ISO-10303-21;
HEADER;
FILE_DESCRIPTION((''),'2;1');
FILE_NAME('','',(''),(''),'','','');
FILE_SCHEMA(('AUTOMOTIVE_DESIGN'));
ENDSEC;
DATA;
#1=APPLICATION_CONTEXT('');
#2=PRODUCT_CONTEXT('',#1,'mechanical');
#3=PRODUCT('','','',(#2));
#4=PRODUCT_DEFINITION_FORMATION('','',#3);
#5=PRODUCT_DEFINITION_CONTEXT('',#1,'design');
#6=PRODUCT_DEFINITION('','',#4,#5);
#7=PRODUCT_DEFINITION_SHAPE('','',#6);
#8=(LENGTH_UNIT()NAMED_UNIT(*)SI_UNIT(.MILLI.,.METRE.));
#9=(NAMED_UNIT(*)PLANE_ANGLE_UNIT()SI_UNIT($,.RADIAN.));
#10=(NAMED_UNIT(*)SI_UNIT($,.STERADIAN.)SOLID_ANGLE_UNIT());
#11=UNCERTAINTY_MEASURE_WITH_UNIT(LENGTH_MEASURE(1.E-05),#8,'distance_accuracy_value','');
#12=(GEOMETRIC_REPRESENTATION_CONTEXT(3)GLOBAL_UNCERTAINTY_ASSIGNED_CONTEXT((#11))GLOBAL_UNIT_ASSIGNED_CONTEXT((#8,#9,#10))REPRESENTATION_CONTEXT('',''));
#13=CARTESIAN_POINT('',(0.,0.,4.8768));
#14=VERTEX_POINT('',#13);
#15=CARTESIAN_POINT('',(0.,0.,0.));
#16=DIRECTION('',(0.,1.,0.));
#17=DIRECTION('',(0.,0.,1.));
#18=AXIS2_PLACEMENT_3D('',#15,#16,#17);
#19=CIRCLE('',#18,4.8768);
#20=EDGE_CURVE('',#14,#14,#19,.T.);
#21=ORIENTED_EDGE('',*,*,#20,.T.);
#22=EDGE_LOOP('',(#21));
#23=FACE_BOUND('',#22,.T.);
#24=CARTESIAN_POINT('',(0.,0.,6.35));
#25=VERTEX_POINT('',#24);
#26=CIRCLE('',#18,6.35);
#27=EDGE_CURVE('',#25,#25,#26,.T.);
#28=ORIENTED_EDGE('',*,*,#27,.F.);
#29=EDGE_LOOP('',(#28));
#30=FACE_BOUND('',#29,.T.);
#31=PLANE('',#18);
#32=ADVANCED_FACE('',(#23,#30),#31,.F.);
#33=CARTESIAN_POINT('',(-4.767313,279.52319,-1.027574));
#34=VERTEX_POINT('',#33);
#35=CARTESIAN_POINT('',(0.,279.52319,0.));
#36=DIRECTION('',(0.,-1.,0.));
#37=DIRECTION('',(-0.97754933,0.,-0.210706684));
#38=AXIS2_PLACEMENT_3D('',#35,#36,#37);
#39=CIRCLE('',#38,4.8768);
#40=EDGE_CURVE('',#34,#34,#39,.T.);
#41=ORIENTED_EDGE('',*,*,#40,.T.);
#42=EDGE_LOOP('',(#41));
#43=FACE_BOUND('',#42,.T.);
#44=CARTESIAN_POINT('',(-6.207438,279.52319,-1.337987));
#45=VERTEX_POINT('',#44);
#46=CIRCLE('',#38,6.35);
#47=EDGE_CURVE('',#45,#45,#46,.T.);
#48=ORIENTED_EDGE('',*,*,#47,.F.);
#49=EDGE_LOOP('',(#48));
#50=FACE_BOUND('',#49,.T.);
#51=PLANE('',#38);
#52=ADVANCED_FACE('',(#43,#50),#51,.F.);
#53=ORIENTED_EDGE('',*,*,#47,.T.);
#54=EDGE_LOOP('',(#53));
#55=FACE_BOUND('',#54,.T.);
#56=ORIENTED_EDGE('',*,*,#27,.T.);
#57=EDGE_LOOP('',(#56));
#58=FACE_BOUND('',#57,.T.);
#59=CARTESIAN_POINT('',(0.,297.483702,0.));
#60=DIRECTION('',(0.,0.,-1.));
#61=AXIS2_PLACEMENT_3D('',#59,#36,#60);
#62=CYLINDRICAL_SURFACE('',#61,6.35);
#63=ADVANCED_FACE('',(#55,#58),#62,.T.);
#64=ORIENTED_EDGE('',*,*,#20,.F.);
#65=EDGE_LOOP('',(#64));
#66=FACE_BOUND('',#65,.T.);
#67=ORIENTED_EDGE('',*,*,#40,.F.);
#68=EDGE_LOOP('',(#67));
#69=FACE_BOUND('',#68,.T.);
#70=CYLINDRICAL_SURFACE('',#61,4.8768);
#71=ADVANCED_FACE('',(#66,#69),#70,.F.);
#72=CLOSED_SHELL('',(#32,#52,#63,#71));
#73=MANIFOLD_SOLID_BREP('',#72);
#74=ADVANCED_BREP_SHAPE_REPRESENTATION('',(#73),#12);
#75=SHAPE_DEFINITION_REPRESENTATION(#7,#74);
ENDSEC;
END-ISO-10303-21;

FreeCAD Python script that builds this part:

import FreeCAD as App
import Part
import Sketcher
Q = App.Units.Quantity

doc = App.newDocument("Part")
body = doc.addObject("PartDesign::Body", "Body")

sketch1 = body.newObject("Sketcher::SketchObject", "Sketch")
sketch1.AttachmentSupport = (doc.getObject("XZ_Plane"), [""])
sketch1.MapMode = "FlatFace"
sketch1.addGeometry([
    Part.Circle(App.Vector(0, 0, 0), App.Vector(0, 0, 1), 6.35),
    Part.Circle(App.Vector(0, 0, 0), App.Vector(0, 0, 1), 4.8768),
], False)
sketch1.addConstraint([
    Sketcher.Constraint("Coincident", 0, 3, -1, 1),
    Sketcher.Constraint("Coincident", 1, 3, -1, 1),
    Sketcher.Constraint("Diameter", 0, Q("0.5 in")),
    Sketcher.Constraint("Diameter", 1, Q("0.384 in")),
])
pad1 = body.newObject("PartDesign::Pad", "Pad")
pad1.Profile = sketch1
pad1.Length = 279.52319
pad1.Reversed = True

doc.recompute()
